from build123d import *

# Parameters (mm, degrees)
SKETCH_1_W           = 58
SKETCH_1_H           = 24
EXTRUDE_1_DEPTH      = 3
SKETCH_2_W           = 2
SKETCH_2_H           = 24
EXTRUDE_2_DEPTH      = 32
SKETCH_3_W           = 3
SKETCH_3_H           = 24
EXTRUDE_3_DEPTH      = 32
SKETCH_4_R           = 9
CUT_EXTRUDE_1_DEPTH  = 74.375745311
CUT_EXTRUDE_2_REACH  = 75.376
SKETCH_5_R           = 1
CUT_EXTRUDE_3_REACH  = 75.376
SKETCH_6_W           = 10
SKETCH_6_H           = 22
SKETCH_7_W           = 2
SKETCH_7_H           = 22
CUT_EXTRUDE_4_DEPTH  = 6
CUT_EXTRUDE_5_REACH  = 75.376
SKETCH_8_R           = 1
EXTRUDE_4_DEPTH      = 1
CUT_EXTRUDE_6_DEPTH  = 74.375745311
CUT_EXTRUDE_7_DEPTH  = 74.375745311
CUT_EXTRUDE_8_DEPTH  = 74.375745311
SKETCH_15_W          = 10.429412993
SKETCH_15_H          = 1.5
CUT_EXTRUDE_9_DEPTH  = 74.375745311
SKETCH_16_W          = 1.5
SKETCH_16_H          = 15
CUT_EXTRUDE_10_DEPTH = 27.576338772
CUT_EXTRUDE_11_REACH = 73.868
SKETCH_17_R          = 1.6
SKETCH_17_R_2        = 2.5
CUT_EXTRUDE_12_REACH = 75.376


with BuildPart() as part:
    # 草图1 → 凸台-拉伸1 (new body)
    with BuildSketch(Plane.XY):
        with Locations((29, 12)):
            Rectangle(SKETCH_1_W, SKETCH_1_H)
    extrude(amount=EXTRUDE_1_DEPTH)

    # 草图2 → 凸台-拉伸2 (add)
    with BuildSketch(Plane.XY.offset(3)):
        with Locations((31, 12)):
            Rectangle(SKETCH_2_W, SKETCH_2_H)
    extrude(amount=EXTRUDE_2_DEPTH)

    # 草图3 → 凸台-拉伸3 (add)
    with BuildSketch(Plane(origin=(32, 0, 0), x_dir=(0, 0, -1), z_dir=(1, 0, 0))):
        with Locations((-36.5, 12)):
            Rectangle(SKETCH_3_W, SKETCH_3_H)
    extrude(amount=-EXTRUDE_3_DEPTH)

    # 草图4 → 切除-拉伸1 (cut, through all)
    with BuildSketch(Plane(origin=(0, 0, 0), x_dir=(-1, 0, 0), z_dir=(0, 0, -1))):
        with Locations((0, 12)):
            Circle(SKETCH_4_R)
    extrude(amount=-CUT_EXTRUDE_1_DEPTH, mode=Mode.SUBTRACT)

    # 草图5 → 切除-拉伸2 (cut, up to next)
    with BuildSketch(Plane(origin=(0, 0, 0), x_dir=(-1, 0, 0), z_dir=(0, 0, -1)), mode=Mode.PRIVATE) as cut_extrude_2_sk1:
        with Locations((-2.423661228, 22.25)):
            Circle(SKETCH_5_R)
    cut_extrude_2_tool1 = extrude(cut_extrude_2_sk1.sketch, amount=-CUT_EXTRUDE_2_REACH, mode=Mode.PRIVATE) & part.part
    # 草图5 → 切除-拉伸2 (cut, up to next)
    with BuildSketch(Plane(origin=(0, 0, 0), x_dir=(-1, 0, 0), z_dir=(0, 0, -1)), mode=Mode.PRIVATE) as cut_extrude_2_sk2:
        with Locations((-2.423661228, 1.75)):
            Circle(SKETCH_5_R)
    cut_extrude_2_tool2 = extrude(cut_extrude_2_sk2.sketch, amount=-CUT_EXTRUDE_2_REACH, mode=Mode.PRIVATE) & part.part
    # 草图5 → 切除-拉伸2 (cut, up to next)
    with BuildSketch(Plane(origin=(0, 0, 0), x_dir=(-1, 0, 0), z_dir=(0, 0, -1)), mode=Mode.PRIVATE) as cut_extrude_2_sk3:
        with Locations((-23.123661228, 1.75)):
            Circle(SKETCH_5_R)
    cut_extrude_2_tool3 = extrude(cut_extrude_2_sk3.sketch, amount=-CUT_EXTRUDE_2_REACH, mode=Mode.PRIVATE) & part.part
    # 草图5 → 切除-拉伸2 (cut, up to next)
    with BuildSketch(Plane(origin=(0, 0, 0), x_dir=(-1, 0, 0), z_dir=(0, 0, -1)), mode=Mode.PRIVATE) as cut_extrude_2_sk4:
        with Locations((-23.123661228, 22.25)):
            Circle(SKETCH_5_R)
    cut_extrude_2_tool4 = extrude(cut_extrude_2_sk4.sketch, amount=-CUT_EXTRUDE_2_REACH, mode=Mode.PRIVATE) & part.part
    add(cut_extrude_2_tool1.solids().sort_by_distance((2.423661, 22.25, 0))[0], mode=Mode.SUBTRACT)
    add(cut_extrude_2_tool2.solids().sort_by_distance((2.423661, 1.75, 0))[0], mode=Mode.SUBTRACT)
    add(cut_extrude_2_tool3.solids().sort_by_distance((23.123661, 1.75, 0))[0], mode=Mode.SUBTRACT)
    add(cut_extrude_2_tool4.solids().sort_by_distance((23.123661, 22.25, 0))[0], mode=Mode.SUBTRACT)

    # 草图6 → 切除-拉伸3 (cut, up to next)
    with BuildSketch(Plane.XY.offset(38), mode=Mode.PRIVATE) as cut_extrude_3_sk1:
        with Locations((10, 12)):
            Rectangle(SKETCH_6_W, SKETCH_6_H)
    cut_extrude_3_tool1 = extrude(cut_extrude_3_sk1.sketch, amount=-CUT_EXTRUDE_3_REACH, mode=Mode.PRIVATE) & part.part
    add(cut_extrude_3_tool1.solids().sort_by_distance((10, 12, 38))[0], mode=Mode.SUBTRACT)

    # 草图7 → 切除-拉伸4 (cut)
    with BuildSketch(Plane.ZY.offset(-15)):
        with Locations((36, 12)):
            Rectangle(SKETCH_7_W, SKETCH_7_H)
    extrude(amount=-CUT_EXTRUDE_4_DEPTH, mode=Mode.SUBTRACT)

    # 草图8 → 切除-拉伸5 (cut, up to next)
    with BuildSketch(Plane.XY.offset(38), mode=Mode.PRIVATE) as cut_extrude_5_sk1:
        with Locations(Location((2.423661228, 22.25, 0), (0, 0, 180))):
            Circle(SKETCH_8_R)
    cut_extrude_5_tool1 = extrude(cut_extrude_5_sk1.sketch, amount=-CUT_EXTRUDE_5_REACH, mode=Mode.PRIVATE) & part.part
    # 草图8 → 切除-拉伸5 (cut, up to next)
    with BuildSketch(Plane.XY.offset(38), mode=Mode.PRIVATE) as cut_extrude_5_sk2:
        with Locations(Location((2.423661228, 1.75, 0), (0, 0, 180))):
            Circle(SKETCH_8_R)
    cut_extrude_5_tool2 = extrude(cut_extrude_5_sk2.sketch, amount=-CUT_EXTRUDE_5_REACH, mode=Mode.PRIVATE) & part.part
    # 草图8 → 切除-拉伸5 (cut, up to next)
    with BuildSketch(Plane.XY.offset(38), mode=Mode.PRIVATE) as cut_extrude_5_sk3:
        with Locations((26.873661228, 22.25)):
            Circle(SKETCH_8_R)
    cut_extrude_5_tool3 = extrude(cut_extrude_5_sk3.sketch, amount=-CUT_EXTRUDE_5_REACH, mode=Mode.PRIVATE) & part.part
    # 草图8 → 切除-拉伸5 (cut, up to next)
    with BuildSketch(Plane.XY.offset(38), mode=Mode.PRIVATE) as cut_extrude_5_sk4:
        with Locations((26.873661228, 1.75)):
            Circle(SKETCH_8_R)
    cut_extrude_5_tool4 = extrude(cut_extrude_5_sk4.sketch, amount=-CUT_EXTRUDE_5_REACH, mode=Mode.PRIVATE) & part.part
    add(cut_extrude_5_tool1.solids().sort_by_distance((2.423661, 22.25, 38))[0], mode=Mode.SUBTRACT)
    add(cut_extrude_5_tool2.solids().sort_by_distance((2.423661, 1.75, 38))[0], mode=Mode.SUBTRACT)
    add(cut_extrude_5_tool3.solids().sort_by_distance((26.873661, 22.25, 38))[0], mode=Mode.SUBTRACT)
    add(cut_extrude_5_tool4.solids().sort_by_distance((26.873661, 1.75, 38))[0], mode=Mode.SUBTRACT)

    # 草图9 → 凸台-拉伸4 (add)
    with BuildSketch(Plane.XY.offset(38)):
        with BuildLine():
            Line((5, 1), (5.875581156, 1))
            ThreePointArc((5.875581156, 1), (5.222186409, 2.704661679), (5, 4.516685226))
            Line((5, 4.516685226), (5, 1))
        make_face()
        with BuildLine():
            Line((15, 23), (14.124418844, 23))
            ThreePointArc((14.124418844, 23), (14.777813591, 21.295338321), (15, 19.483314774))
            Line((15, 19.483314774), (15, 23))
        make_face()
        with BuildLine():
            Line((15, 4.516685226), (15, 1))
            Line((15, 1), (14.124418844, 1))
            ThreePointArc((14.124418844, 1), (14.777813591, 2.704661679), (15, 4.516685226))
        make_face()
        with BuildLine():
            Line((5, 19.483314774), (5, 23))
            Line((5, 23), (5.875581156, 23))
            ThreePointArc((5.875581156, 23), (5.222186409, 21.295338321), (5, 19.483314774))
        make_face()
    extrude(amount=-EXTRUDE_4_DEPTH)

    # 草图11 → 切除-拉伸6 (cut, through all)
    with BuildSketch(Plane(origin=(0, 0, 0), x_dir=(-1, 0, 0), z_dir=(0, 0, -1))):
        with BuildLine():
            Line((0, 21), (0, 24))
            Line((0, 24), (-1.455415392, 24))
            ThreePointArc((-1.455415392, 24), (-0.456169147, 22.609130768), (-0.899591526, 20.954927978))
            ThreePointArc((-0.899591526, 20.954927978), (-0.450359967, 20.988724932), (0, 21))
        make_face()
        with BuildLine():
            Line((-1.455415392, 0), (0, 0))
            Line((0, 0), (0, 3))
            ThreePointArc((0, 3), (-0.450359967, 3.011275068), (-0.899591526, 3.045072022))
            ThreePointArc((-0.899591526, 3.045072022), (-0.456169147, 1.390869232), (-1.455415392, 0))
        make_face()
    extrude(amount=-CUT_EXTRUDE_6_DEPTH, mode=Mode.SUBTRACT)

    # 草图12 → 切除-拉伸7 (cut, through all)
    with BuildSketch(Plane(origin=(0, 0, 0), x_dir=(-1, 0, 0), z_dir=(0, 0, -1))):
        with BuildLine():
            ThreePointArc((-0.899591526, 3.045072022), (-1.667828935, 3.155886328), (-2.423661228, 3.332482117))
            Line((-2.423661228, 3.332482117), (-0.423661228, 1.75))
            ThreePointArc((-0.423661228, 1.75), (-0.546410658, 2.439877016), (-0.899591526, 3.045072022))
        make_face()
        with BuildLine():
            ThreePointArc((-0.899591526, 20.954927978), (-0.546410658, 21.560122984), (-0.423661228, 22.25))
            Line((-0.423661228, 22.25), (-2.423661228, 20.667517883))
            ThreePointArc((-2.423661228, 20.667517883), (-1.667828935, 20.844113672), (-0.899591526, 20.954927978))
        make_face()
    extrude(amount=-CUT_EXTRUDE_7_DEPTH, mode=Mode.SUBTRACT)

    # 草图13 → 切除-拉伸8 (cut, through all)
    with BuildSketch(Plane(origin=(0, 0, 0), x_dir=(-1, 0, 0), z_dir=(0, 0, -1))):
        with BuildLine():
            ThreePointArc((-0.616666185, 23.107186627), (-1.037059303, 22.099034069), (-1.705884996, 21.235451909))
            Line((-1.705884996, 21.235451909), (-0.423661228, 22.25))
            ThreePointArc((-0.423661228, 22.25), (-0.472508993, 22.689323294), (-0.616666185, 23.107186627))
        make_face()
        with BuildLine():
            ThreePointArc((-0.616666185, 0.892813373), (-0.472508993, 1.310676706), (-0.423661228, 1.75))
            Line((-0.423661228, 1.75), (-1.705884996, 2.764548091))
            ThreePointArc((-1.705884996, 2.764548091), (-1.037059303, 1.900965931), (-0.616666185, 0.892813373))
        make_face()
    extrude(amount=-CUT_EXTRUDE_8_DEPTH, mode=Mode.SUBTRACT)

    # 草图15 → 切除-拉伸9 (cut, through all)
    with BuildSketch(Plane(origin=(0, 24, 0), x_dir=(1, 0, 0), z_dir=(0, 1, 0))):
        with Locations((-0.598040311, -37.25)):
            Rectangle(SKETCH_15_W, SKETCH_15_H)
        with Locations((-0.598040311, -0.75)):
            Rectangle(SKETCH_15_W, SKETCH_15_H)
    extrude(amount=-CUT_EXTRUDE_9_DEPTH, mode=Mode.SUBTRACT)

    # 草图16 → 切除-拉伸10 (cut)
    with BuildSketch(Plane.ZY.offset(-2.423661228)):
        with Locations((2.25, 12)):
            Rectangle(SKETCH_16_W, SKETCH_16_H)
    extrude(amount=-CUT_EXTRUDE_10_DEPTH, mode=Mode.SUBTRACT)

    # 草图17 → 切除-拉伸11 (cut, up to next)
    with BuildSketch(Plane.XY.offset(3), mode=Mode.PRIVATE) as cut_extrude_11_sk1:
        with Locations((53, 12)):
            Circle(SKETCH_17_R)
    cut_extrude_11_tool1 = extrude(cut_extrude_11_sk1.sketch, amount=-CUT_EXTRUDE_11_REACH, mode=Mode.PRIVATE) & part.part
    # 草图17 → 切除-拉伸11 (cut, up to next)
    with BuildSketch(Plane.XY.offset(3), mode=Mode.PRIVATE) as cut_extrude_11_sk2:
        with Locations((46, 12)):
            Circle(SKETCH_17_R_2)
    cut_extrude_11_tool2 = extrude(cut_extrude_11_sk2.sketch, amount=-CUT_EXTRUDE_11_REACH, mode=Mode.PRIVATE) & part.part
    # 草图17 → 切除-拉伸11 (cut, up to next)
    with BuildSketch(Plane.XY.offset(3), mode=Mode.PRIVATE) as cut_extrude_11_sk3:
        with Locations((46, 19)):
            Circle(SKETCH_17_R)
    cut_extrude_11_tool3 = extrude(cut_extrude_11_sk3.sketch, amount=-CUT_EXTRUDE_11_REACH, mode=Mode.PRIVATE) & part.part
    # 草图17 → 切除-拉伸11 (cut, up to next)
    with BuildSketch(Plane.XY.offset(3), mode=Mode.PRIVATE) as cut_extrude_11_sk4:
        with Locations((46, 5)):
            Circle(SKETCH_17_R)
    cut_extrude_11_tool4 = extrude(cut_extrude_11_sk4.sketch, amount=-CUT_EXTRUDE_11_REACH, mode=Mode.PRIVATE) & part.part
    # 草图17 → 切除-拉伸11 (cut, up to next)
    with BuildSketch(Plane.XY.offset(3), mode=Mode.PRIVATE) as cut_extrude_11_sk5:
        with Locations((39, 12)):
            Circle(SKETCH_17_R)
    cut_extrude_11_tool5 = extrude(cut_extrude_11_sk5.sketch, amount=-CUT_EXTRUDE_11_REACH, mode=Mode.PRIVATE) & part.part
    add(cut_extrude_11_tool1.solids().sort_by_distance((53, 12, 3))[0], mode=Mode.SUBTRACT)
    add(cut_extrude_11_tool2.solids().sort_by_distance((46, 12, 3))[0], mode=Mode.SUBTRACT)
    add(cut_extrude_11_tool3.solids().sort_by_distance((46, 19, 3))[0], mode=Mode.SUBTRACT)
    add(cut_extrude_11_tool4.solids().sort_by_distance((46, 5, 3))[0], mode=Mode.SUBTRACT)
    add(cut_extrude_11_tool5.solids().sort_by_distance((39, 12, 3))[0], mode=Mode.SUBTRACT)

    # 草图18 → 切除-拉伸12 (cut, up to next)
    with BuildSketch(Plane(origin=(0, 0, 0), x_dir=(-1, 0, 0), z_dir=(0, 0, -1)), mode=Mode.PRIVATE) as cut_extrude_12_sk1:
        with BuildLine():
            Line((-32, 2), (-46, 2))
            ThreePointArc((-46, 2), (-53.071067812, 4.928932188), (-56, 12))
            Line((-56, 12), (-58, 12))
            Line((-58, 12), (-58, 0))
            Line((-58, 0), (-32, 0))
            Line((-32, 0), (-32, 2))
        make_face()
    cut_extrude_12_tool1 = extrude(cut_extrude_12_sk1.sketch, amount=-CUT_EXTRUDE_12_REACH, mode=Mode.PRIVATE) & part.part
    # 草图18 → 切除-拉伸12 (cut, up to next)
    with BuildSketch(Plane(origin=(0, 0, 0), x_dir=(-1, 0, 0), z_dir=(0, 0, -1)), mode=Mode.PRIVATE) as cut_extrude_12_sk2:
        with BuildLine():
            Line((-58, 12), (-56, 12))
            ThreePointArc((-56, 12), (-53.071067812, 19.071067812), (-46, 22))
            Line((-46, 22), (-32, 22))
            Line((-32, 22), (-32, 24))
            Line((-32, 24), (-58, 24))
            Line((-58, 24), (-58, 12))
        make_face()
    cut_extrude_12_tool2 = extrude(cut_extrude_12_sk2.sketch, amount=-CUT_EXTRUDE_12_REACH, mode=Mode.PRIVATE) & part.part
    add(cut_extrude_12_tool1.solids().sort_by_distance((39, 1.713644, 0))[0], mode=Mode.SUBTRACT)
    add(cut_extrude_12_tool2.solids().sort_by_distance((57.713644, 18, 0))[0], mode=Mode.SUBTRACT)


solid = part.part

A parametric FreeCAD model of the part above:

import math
import FreeCAD as App
import Part
import Sketcher

V = App.Vector


def add_polygon(sketch, points):
    """Adds a closed chain of lines whose ends are joined by coincident constraints."""
    first, n = sketch.GeometryCount, len(points)
    for a, b in zip(points, points[1:] + points[:1]):
        sketch.addGeometry(Part.LineSegment(App.Vector(*a, 0), App.Vector(*b, 0)), False)
    for i in range(n):
        sketch.addConstraint(Sketcher.Constraint("Coincident", first + i, 2, first + (i + 1) % n, 1))

doc = App.newDocument("Part")
params = doc.addObject("Spreadsheet::Sheet", "Params")
for row, (alias, value) in enumerate([
    ("sketch1_width", "58 mm"),
    ("sketch1_height", "24 mm"),
    ("pad1_length", "3 mm"),
    ("sketch2_width", "2 mm"),
    ("sketch2_height", "24 mm"),
    ("pad2_length", "32 mm"),
    ("sketch3_width", "24 mm"),
    ("sketch3_height", "3 mm"),
    ("pad3_length", "32 mm"),
    ("sketch4_diameter", "18 mm"),
    ("sketch5_diameter", "2 mm"),
    ("sketch6_diameter", "2 mm"),
    ("sketch7_diameter", "2 mm"),
    ("sketch8_diameter", "2 mm"),
    ("sketch9_width", "10 mm"),
    ("sketch9_height", "22 mm"),
    ("sketch10_width", "22 mm"),
    ("sketch10_height", "2 mm"),
    ("pocket7_length", "6 mm"),
    ("sketch11_diameter", "2 mm"),
    ("sketch12_diameter", "2 mm"),
    ("sketch13_diameter", "2 mm"),
    ("sketch14_diameter", "2 mm"),
    ("sketch15_radius", "7.5 mm"),
    ("pad4_length", "1 mm"),
    ("sketch16_radius", "2 mm"),
    ("sketch16_radius2", "9 mm"),
    ("sketch16_height", "3 mm"),
    ("sketch17_radius", "9 mm"),
    ("sketch17_radius2", "2 mm"),
    ("sketch18_radius", "2 mm"),
    ("sketch19_height", "1.5 mm"),
    ("sketch20_width", "15 mm"),
    ("sketch20_height", "1.5 mm"),
    ("pocket16_length", "27.576339 mm"),
    ("sketch21_diameter", "3.2 mm"),
    ("sketch22_diameter", "5 mm"),
    ("sketch23_diameter", "3.2 mm"),
    ("sketch24_diameter", "3.2 mm"),
    ("sketch25_diameter", "3.2 mm"),
    ("sketch26_radius", "10 mm"),
    ("sketch26_width", "14 mm"),
    ("sketch26_width2", "2 mm"),
    ("sketch26_height", "12 mm"),
    ("sketch27_radius", "10 mm"),
    ("sketch27_width", "2 mm"),
    ("sketch27_width2", "14 mm"),
], start=1):
    params.set(f"A{row}", alias)
    params.set(f"B{row}", "=" + value)
    params.setAlias(f"B{row}", alias)

body = doc.addObject("PartDesign::Body", "Body")

# Sketch on XY plane
sketch1 = body.newObject("Sketcher::SketchObject", "Sketch")
sketch1.AttachmentSupport = (doc.getObject("XY_Plane"), [""])
sketch1.MapMode = "FlatFace"
add_polygon(sketch1, [(0, 24), (0, 0), (58, 0), (58, 24)])  # lines 0-3
sketch1.addConstraint([
    Sketcher.Constraint("Vertical", 0),
    Sketcher.Constraint("Horizontal", 1),
    Sketcher.Constraint("Vertical", 2),
    Sketcher.Constraint("Horizontal", 3),
    Sketcher.Constraint("Coincident", 0, 2, -1, 1),
    Sketcher.Constraint("DistanceX", 1, 1, 1, 2, 58.0),
    Sketcher.Constraint("DistanceY", 0, 2, 0, 1, 24.0),
])
sketch1.setExpression("Constraints[9]", "Params.sketch1_width")
sketch1.setExpression("Constraints[10]", "Params.sketch1_height")
pad1 = body.newObject("PartDesign::Pad", "Pad")
pad1.Profile = sketch1
pad1.setExpression("Length", "Params.pad1_length")

# Sketch on XY plane
sketch2 = body.newObject("Sketcher::SketchObject", "Sketch001")
sketch2.AttachmentSupport = (doc.getObject("XY_Plane"), [""])
sketch2.MapMode = "FlatFace"
sketch2.AttachmentOffset = App.Placement(V(0, 0, 3), App.Rotation())
add_polygon(sketch2, [(30, 24), (30, 0), (32, 0), (32, 24)])  # lines 0-3
sketch2.addConstraint([
    Sketcher.Constraint("Vertical", 0),
    Sketcher.Constraint("Horizontal", 1),
    Sketcher.Constraint("Vertical", 2),
    Sketcher.Constraint("Horizontal", 3),
    Sketcher.Constraint("PointOnObject", 0, 2, -1),
    Sketcher.Constraint("DistanceX", 1, 1, 1, 2, 2.0),
    Sketcher.Constraint("DistanceY", 0, 2, 0, 1, 24.0),
    Sketcher.Constraint("DistanceX", -1, 1, 0, 2, 30.0),
])
sketch2.setExpression("Constraints[9]", "Params.sketch2_width")
sketch2.setExpression("Constraints[10]", "Params.sketch2_height")
pad2 = body.newObject("PartDesign::Pad", "Pad001")
pad2.Profile = sketch2
pad2.setExpression("Length", "Params.pad2_length")

# Sketch on YZ plane
sketch3 = body.newObject("Sketcher::SketchObject", "Sketch002")
sketch3.AttachmentSupport = (doc.getObject("YZ_Plane"), [""])
sketch3.MapMode = "FlatFace"
sketch3.AttachmentOffset = App.Placement(V(0, 0, 32), App.Rotation())
add_polygon(sketch3, [(24, 38), (0, 38), (0, 35), (24, 35)])  # lines 0-3
sketch3.addConstraint([
    Sketcher.Constraint("Horizontal", 0),
    Sketcher.Constraint("Vertical", 1),
    Sketcher.Constraint("Horizontal", 2),
    Sketcher.Constraint("Vertical", 3),
    Sketcher.Constraint("PointOnObject", 0, 2, -2),
    Sketcher.Constraint("DistanceX", 0, 2, 0, 1, 24.0),
    Sketcher.Constraint("DistanceY", 1, 2, 1, 1, 3.0),
    Sketcher.Constraint("DistanceY", -1, 1, 0, 2, 38.0),
])
sketch3.setExpression("Constraints[9]", "Params.sketch3_width")
sketch3.setExpression("Constraints[10]", "Params.sketch3_height")
pad3 = body.newObject("PartDesign::Pad", "Pad002")
pad3.Profile = sketch3
pad3.setExpression("Length", "Params.pad3_length")
pad3.Reversed = True

# Sketch on XY plane
sketch4 = body.newObject("Sketcher::SketchObject", "Sketch003")
sketch4.AttachmentSupport = (doc.getObject("XY_Plane"), [""])
sketch4.MapMode = "FlatFace"
sketch4.addGeometry(Part.Circle(V(0, 12, 0), V(0, 0, 1), 9), False)
sketch4.addConstraint([
    Sketcher.Constraint("PointOnObject", 0, 3, -2),
    Sketcher.Constraint("Diameter", 0, 18.0),
    Sketcher.Constraint("DistanceY", -1, 1, 0, 3, 12.0),
])
sketch4.setExpression("Constraints[1]", "Params.sketch4_diameter")
pocket1 = body.newObject("PartDesign::Pocket", "Pocket")
pocket1.Profile = sketch4
pocket1.Type = "ThroughAll"
pocket1.Reversed = True

# Sketch on XY plane
sketch5 = body.newObject("Sketcher::SketchObject", "Sketch004")
sketch5.AttachmentSupport = (doc.getObject("XY_Plane"), [""])
sketch5.MapMode = "FlatFace"
sketch5.addGeometry(Part.Circle(V(2.4, 22.2, 0), V(0, 0, 1), 1), False)
sketch5.addConstraint([
    Sketcher.Constraint("Diameter", 0, 2.0),
    Sketcher.Constraint("DistanceY", -1, 1, 0, 3, 22.25),
    Sketcher.Constraint("DistanceX", -1, 1, 0, 3, 2.423661),
])
sketch5.setExpression("Constraints[0]", "Params.sketch5_diameter")
pocket2 = body.newObject("PartDesign::Pocket", "Pocket001")
pocket2.Profile = sketch5
pocket2.Type = "UpToFirst"
pocket2.Reversed = True

# Sketch on XY plane
sketch6 = body.newObject("Sketcher::SketchObject", "Sketch005")
sketch6.AttachmentSupport = (doc.getObject("XY_Plane"), [""])
sketch6.MapMode = "FlatFace"
sketch6.addGeometry(Part.Circle(V(2.4, 1.8, 0), V(0, 0, 1), 1), False)
sketch6.addConstraint([
    Sketcher.Constraint("Diameter", 0, 2.0),
    Sketcher.Constraint("DistanceY", -1, 1, 0, 3, 1.75),
    Sketcher.Constraint("DistanceX", -1, 1, 0, 3, 2.423661),
])
sketch6.setExpression("Constraints[0]", "Params.sketch6_diameter")
pocket3 = body.newObject("PartDesign::Pocket", "Pocket002")
pocket3.Profile = sketch6
pocket3.Type = "UpToFirst"
pocket3.Reversed = True

# Sketch on XY plane
sketch7 = body.newObject("Sketcher::SketchObject", "Sketch006")
sketch7.AttachmentSupport = (doc.getObject("XY_Plane"), [""])
sketch7.MapMode = "FlatFace"
sketch7.addGeometry(Part.Circle(V(23.1, 1.8, 0), V(0, 0, 1), 1), False)
sketch7.addConstraint([
    Sketcher.Constraint("Diameter", 0, 2.0),
    Sketcher.Constraint("DistanceY", -1, 1, 0, 3, 1.75),
    Sketcher.Constraint("DistanceX", -1, 1, 0, 3, 23.123661),
])
sketch7.setExpression("Constraints[0]", "Params.sketch7_diameter")
pocket4 = body.newObject("PartDesign::Pocket", "Pocket003")
pocket4.Profile = sketch7
pocket4.Type = "UpToFirst"
pocket4.Reversed = True

# Sketch on XY plane
sketch8 = body.newObject("Sketcher::SketchObject", "Sketch007")
sketch8.AttachmentSupport = (doc.getObject("XY_Plane"), [""])
sketch8.MapMode = "FlatFace"
sketch8.addGeometry(Part.Circle(V(23.1, 22.2, 0), V(0, 0, 1), 1), False)
sketch8.addConstraint([
    Sketcher.Constraint("Diameter", 0, 2.0),
    Sketcher.Constraint("DistanceY", -1, 1, 0, 3, 22.25),
    Sketcher.Constraint("DistanceX", -1, 1, 0, 3, 23.123661),
])
sketch8.setExpression("Constraints[0]", "Params.sketch8_diameter")
pocket5 = body.newObject("PartDesign::Pocket", "Pocket004")
pocket5.Profile = sketch8
pocket5.Type = "UpToFirst"
pocket5.Reversed = True

# Sketch on XY plane
sketch9 = body.newObject("Sketcher::SketchObject", "Sketch008")
sketch9.AttachmentSupport = (doc.getObject("XY_Plane"), [""])
sketch9.MapMode = "FlatFace"
sketch9.AttachmentOffset = App.Placement(V(0, 0, 38), App.Rotation())
add_polygon(sketch9, [(5, 23), (5, 1), (15, 1), (15, 23)])  # lines 0-3
sketch9.addConstraint([
    Sketcher.Constraint("Vertical", 0),
    Sketcher.Constraint("Horizontal", 1),
    Sketcher.Constraint("Vertical", 2),
    Sketcher.Constraint("Horizontal", 3),
    Sketcher.Constraint("DistanceX", 1, 1, 1, 2, 10.0),
    Sketcher.Constraint("DistanceY", 0, 2, 0, 1, 22.0),
    Sketcher.Constraint("DistanceX", -1, 1, 0, 2, 5.0),
    Sketcher.Constraint("DistanceY", -1, 1, 0, 2, 1.0),
])
sketch9.setExpression("Constraints[8]", "Params.sketch9_width")
sketch9.setExpression("Constraints[9]", "Params.sketch9_height")
pocket6 = body.newObject("PartDesign::Pocket", "Pocket005")
pocket6.Profile = sketch9
pocket6.Type = "UpToFirst"

# Sketch on YZ plane
sketch10 = body.newObject("Sketcher::SketchObject", "Sketch009")
sketch10.AttachmentSupport = (doc.getObject("YZ_Plane"), [""])
sketch10.MapMode = "FlatFace"
sketch10.AttachmentOffset = App.Placement(V(0, 0, 15), App.Rotation())
add_polygon(sketch10, [(23, 35), (1, 35), (1, 37), (23, 37)])  # lines 0-3
sketch10.addConstraint([
    Sketcher.Constraint("Horizontal", 0),
    Sketcher.Constraint("Vertical", 1),
    Sketcher.Constraint("Horizontal", 2),
    Sketcher.Constraint("Vertical", 3),
    Sketcher.Constraint("DistanceX", 0, 2, 0, 1, 22.0),
    Sketcher.Constraint("DistanceY", 1, 1, 1, 2, 2.0),
    Sketcher.Constraint("DistanceX", -1, 1, 0, 2, 1.0),
    Sketcher.Constraint("DistanceY", -1, 1, 0, 2, 35.0),
])
sketch10.setExpression("Constraints[8]", "Params.sketch10_width")
sketch10.setExpression("Constraints[9]", "Params.sketch10_height")
pocket7 = body.newObject("PartDesign::Pocket", "Pocket006")
pocket7.Profile = sketch10
pocket7.setExpression("Length", "Params.pocket7_length")
pocket7.Reversed = True

# Sketch on XY plane
sketch11 = body.newObject("Sketcher::SketchObject", "Sketch010")
sketch11.AttachmentSupport = (doc.getObject("XY_Plane"), [""])
sketch11.MapMode = "FlatFace"
sketch11.AttachmentOffset = App.Placement(V(0, 0, 38), App.Rotation())
sketch11.addGeometry(Part.Circle(V(2.4, 22.2, 0), V(0, 0, 1), 1), False)
sketch11.addConstraint([
    Sketcher.Constraint("Diameter", 0, 2.0),
    Sketcher.Constraint("DistanceY", -1, 1, 0, 3, 22.25),
    Sketcher.Constraint("DistanceX", -1, 1, 0, 3, 2.423661),
])
sketch11.setExpression("Constraints[0]", "Params.sketch11_diameter")
pocket8 = body.newObject("PartDesign::Pocket", "Pocket007")
pocket8.Profile = sketch11
pocket8.Type = "UpToFirst"

# Sketch on XY plane
sketch12 = body.newObject("Sketcher::SketchObject", "Sketch011")
sketch12.AttachmentSupport = (doc.getObject("XY_Plane"), [""])
sketch12.MapMode = "FlatFace"
sketch12.AttachmentOffset = App.Placement(V(0, 0, 38), App.Rotation())
sketch12.addGeometry(Part.Circle(V(2.4, 1.8, 0), V(0, 0, 1), 1), False)
sketch12.addConstraint([
    Sketcher.Constraint("Diameter", 0, 2.0),
    Sketcher.Constraint("DistanceY", -1, 1, 0, 3, 1.75),
    Sketcher.Constraint("DistanceX", -1, 1, 0, 3, 2.423661),
])
sketch12.setExpression("Constraints[0]", "Params.sketch12_diameter")
pocket9 = body.newObject("PartDesign::Pocket", "Pocket008")
pocket9.Profile = sketch12
pocket9.Type = "UpToFirst"

# Sketch on XY plane
sketch13 = body.newObject("Sketcher::SketchObject", "Sketch012")
sketch13.AttachmentSupport = (doc.getObject("XY_Plane"), [""])
sketch13.MapMode = "FlatFace"
sketch13.AttachmentOffset = App.Placement(V(0, 0, 38), App.Rotation())
sketch13.addGeometry(Part.Circle(V(26.9, 22.2, 0), V(0, 0, 1), 1), False)
sketch13.addConstraint([
    Sketcher.Constraint("Diameter", 0, 2.0),
    Sketcher.Constraint("DistanceY", -1, 1, 0, 3, 22.25),
    Sketcher.Constraint("DistanceX", -1, 1, 0, 3, 26.873661),
])
sketch13.setExpression("Constraints[0]", "Params.sketch13_diameter")
pocket10 = body.newObject("PartDesign::Pocket", "Pocket009")
pocket10.Profile = sketch13
pocket10.Type = "UpToFirst"

# Sketch on XY plane
sketch14 = body.newObject("Sketcher::SketchObject", "Sketch013")
sketch14.AttachmentSupport = (doc.getObject("XY_Plane"), [""])
sketch14.MapMode = "FlatFace"
sketch14.AttachmentOffset = App.Placement(V(0, 0, 38), App.Rotation())
sketch14.addGeometry(Part.Circle(V(26.9, 1.8, 0), V(0, 0, 1), 1), False)
sketch14.addConstraint([
    Sketcher.Constraint("Diameter", 0, 2.0),
    Sketcher.Constraint("DistanceY", -1, 1, 0, 3, 1.75),
    Sketcher.Constraint("DistanceX", -1, 1, 0, 3, 26.873661),
])
sketch14.setExpression("Constraints[0]", "Params.sketch14_diameter")
pocket11 = body.newObject("PartDesign::Pocket", "Pocket010")
pocket11.Profile = sketch14
pocket11.Type = "UpToFirst"

# Sketch on XY plane
sketch15 = body.newObject("Sketcher::SketchObject", "Sketch014")
sketch15.AttachmentSupport = (doc.getObject("XY_Plane"), [""])
sketch15.MapMode = "FlatFace"
sketch15.AttachmentOffset = App.Placement(V(0, 0, 38), App.Rotation())
sketch15.addGeometry([
    Part.LineSegment(V(5, 1, 0), V(5.9, 1, 0)),  # 0
    Part.ArcOfCircle(Part.Circle(V(12.5, 4.5, 0), V(0, 0, 1), 7.5), math.radians(180), math.radians(208)),  # 1
    Part.LineSegment(V(5, 4.5, 0), V(5, 1, 0)),  # 2
    Part.LineSegment(V(15, 23, 0), V(14.1, 23, 0)),  # 3
    Part.ArcOfCircle(Part.Circle(V(7.5, 19.5, 0), V(0, 0, 1), 7.5), math.radians(0), math.radians(28)),  # 4
    Part.LineSegment(V(15, 19.5, 0), V(15, 23, 0)),  # 5
    Part.LineSegment(V(15, 1, 0), V(15, 4.5, 0)),  # 6
    Part.ArcOfCircle(Part.Circle(V(7.5, 4.5, 0), V(0, 0, 1), 7.5), math.radians(-28), math.radians(0)),  # 7
    Part.LineSegment(V(14.1, 1, 0), V(15, 1, 0)),  # 8
    Part.LineSegment(V(5, 23, 0), V(5, 19.5, 0)),  # 9
    Part.ArcOfCircle(Part.Circle(V(12.5, 19.5, 0), V(0, 0, 1), 7.5), math.radians(152), math.radians(180)),  # 10
    Part.LineSegment(V(5.9, 23, 0), V(5, 23, 0)),  # 11
], False)
sketch15.addConstraint([
    Sketcher.Constraint("Coincident", 0, 2, 1, 2),
    Sketcher.Constraint("Tangent", 1, 1, 2, 1),
    Sketcher.Constraint("Coincident", 2, 2, 0, 1),
    Sketcher.Constraint("Coincident", 3, 2, 4, 2),
    Sketcher.Constraint("Tangent", 4, 1, 5, 1),
    Sketcher.Constraint("Coincident", 5, 2, 3, 1),
    Sketcher.Constraint("Tangent", 6, 2, 7, 2),
    Sketcher.Constraint("Coincident", 7, 1, 8, 1),
    Sketcher.Constraint("Coincident", 8, 2, 6, 1),
    Sketcher.Constraint("Tangent", 9, 2, 10, 2),
    Sketcher.Constraint("Coincident", 10, 1, 11, 1),
    Sketcher.Constraint("Coincident", 11, 2, 9, 1),
    Sketcher.Constraint("Horizontal", 0),
    Sketcher.Constraint("Vertical", 2),
    Sketcher.Constraint("Horizontal", 3),
    Sketcher.Constraint("Vertical", 5),
    Sketcher.Constraint("Vertical", 6),
    Sketcher.Constraint("Horizontal", 8),
    Sketcher.Constraint("Vertical", 9),
    Sketcher.Constraint("Horizontal", 11),
    Sketcher.Constraint("Equal", 1, 4),
    Sketcher.Constraint("Equal", 4, 7),
    Sketcher.Constraint("Equal", 7, 10),
    Sketcher.Constraint("Horizontal", 1, 3, 7, 3),
    Sketcher.Constraint("Horizontal", 4, 3, 10, 3),
    Sketcher.Constraint("Horizontal", 2, 2, 7, 1),
    Sketcher.Constraint("Horizontal", 5, 2, 10, 1),
    Sketcher.Constraint("Vertical", 4, 3, 7, 3),
    Sketcher.Constraint("Vertical", 1, 3, 10, 3),
    Sketcher.Constraint("Vertical", 3, 2, 7, 1),
    Sketcher.Constraint("Radius", 1, 7.5),
    Sketcher.Constraint("DistanceY", -1, 1, 0, 2, 1.0),
    Sketcher.Constraint("DistanceX", -1, 1, 1, 1, 5.0),
    Sketcher.Constraint("DistanceY", -1, 1, 3, 2, 23.0),
    Sketcher.Constraint("DistanceX", -1, 1, 4, 1, 15.0),
    Sketcher.Constraint("DistanceX", 0, 1, 0, 2, 0.875581),
])
sketch15.setExpression("Constraints[30]", "Params.sketch15_radius")
pad4 = body.newObject("PartDesign::Pad", "Pad003")
pad4.Profile = sketch15
pad4.setExpression("Length", "Params.pad4_length")
pad4.Reversed = True

# Sketch on XY plane
sketch16 = body.newObject("Sketcher::SketchObject", "Sketch015")
sketch16.AttachmentSupport = (doc.getObject("XY_Plane"), [""])
sketch16.MapMode = "FlatFace"
sketch16.addGeometry([
    Part.LineSegment(V(0, 21, 0), V(0, 24, 0)),  # 0
    Part.LineSegment(V(0, 24, 0), V(1.5, 24, 0)),  # 1
    Part.ArcOfCircle(Part.Circle(V(2.4, 22.2, 0), V(0, 0, 1), 2), math.radians(119), math.radians(220)),  # 2
    Part.ArcOfCircle(Part.Circle(V(0, 12, 0), V(0, 0, 1), 9), math.radians(84.26), math.radians(90)),  # 3
    Part.LineSegment(V(1.5, 0, 0), V(0, 0, 0)),  # 4
    Part.LineSegment(V(0, 0, 0), V(0, 3, 0)),  # 5
    Part.ArcOfCircle(Part.Circle(V(0, 12, 0), V(0, 0, 1), 9), math.radians(-90), math.radians(-84.26)),  # 6
    Part.ArcOfCircle(Part.Circle(V(2.4, 1.8, 0), V(0, 0, 1), 2), math.radians(140), math.radians(241)),  # 7
], False)
sketch16.addConstraint([
    Sketcher.Constraint("Coincident", 0, 2, 1, 1),
    Sketcher.Constraint("Coincident", 1, 2, 2, 1),
    Sketcher.Constraint("Coincident", 2, 2, 3, 1),
    Sketcher.Constraint("Coincident", 3, 2, 0, 1),
    Sketcher.Constraint("Coincident", 4, 2, 5, 1),
    Sketcher.Constraint("Coincident", 5, 2, 6, 1),
    Sketcher.Constraint("Coincident", 6, 2, 7, 1),
    Sketcher.Constraint("Coincident", 7, 2, 4, 1),
    Sketcher.Constraint("Vertical", 0),
    Sketcher.Constraint("Horizontal", 1),
    Sketcher.Constraint("Horizontal", 4),
    Sketcher.Constraint("Vertical", 5),
    Sketcher.Constraint("Coincident", 4, 2, -1, 1),
    Sketcher.Constraint("Coincident", 6, 3, 3, 3),
    Sketcher.Constraint("Equal", 3, 6),
    Sketcher.Constraint("Equal", 2, 7),
    Sketcher.Constraint("PointOnObject", 3, 3, -2),
    Sketcher.Constraint("PointOnObject", 0, 2, -2),
    Sketcher.Constraint("Vertical", 2, 3, 7, 3),
    Sketcher.Constraint("Vertical", 2, 2, 6, 2),
    Sketcher.Constraint("Vertical", 1, 2, 7, 2),
    Sketcher.Constraint("Radius", 2, 2.0),
    Sketcher.Constraint("Radius", 3, 9.0),
    Sketcher.Constraint("DistanceY", 0, 1, 0, 2, 3.0),
    Sketcher.Constraint("DistanceY", 7, 3, 2, 3, 20.5),
    Sketcher.Constraint("DistanceX", 1, 1, 1, 2, 1.455415),
])
sketch16.setExpression("Constraints[21]", "Params.sketch16_radius")
sketch16.setExpression("Constraints[22]", "Params.sketch16_radius2")
sketch16.setExpression("Constraints[23]", "Params.sketch16_height")
pocket12 = body.newObject("PartDesign::Pocket", "Pocket011")
pocket12.Profile = sketch16
pocket12.Type = "ThroughAll"
pocket12.Reversed = True

# Sketch on XY plane
sketch17 = body.newObject("Sketcher::SketchObject", "Sketch016")
sketch17.AttachmentSupport = (doc.getObject("XY_Plane"), [""])
sketch17.MapMode = "FlatFace"
sketch17.addGeometry([
    Part.ArcOfCircle(Part.Circle(V(0, 12, 0), V(0, 0, 1), 9), math.radians(-84.26), math.radians(-74.38)),  # 0
    Part.LineSegment(V(2.4, 3.3, 0), V(0.4, 1.8, 0)),  # 1
    Part.ArcOfCircle(Part.Circle(V(2.4, 1.8, 0), V(0, 0, 1), 2), math.radians(140), math.radians(180)),  # 2
    Part.ArcOfCircle(Part.Circle(V(2.4, 22.2, 0), V(0, 0, 1), 2), math.radians(180), math.radians(220)),  # 3
    Part.LineSegment(V(0.4, 22.2, 0), V(2.4, 20.7, 0)),  # 4
    Part.ArcOfCircle(Part.Circle(V(0, 12, 0), V(0, 0, 1), 9), math.radians(74.38), math.radians(84.26)),  # 5
], False)
sketch17.addConstraint([
    Sketcher.Constraint("Coincident", 0, 2, 1, 1),
    Sketcher.Constraint("Coincident", 1, 2, 2, 2),
    Sketcher.Constraint("Coincident", 2, 1, 0, 1),
    Sketcher.Constraint("Coincident", 3, 1, 4, 1),
    Sketcher.Constraint("Coincident", 4, 2, 5, 1),
    Sketcher.Constraint("Coincident", 5, 2, 3, 2),
    Sketcher.Constraint("Coincident", 5, 3, 0, 3),
    Sketcher.Constraint("Equal", 2, 3),
    Sketcher.Constraint("Equal", 0, 5),
    Sketcher.Constraint("PointOnObject", 0, 3, -2),
    Sketcher.Constraint("Horizontal", 2, 3, 1, 2),
    Sketcher.Constraint("Vertical", 2, 3, 3, 3),
    Sketcher.Constraint("Vertical", 3, 3, 0, 2),
    Sketcher.Constraint("Vertical", 0, 2, 4, 2),
    Sketcher.Constraint("Vertical", 2, 1, 5, 2),
    Sketcher.Constraint("Equal", 1, 4),
    Sketcher.Constraint("Radius", 0, 9.0),
    Sketcher.Constraint("Radius", 2, 2.0),
    Sketcher.Constraint("DistanceY", -1, 1, 0, 3, 12.0),
    Sketcher.Constraint("DistanceY", 2, 3, 3, 3, 20.5),
    Sketcher.Constraint("DistanceX", -1, 1, 2, 3, 2.423661),
])
sketch17.setExpression("Constraints[16]", "Params.sketch17_radius")
sketch17.setExpression("Constraints[17]", "Params.sketch17_radius2")
pocket13 = body.newObject("PartDesign::Pocket", "Pocket012")
pocket13.Profile = sketch17
pocket13.Type = "ThroughAll"
pocket13.Reversed = True

# Sketch on XY plane
sketch18 = body.newObject("Sketcher::SketchObject", "Sketch017")
sketch18.AttachmentSupport = (doc.getObject("XY_Plane"), [""])
sketch18.MapMode = "FlatFace"
sketch18.addGeometry([
    Part.ArcOfCircle(Part.Circle(V(4.6, 24.2, 0), V(0, 0, 1), 4.2), math.radians(-165), math.radians(-135)),  # 0
    Part.LineSegment(V(1.7, 21.2, 0), V(0.4, 22.2, 0)),  # 1
    Part.ArcOfCircle(Part.Circle(V(2.4, 22.3, 0), V(0, 0, 1), 2), math.radians(155), math.radians(180)),  # 2
    Part.ArcOfCircle(Part.Circle(V(2.4, 1.7, 0), V(0, 0, 1), 2), math.radians(180), math.radians(205)),  # 3
    Part.LineSegment(V(0.4, 1.8, 0), V(1.7, 2.8, 0)),  # 4
    Part.ArcOfCircle(Part.Circle(V(4.6, -0.2, 0), V(0, 0, 1), 4.2), math.radians(135), math.radians(165)),  # 5
], False)
sketch18.addConstraint([
    Sketcher.Constraint("Coincident", 0, 2, 1, 1),
    Sketcher.Constraint("Coincident", 1, 2, 2, 2),
    Sketcher.Constraint("Coincident", 2, 1, 0, 1),
    Sketcher.Constraint("Coincident", 3, 1, 4, 1),
    Sketcher.Constraint("Coincident", 4, 2, 5, 1),
    Sketcher.Constraint("Coincident", 5, 2, 3, 2),
    Sketcher.Constraint("Equal", 2, 3),
    Sketcher.Constraint("Equal", 0, 5),
    Sketcher.Constraint("Horizontal", 2, 3, 1, 2),
    Sketcher.Constraint("Vertical", 2, 3, 3, 3),
    Sketcher.Constraint("Vertical", 0, 3, 5, 3),
    Sketcher.Constraint("Vertical", 0, 2, 4, 2),
    Sketcher.Constraint("Vertical", 2, 1, 5, 2),
    Sketcher.Constraint("Equal", 1, 4),
    Sketcher.Constraint("Radius", 2, 2.0),
    Sketcher.Constraint("DistanceY", 3, 3, 2, 3, 20.5),
    Sketcher.Constraint("DistanceY", -1, 1, 2, 3, 22.25),
    Sketcher.Constraint("Radius", 0, 4.150847),
    Sketcher.Constraint("DistanceX", 2, 3, 0, 3, 2.201001),
    Sketcher.Constraint("DistanceY", -1, 1, 0, 3, 24.186768),
    Sketcher.Constraint("DistanceX", -1, 1, 2, 3, 2.423661),
    Sketcher.Constraint("DistanceY", -1, 1, 0, 2, 21.235452),
])
sketch18.setExpression("Constraints[14]", "Params.sketch18_radius")
pocket14 = body.newObject("PartDesign::Pocket", "Pocket013")
pocket14.Profile = sketch18
pocket14.Type = "ThroughAll"
pocket14.Reversed = True

# Sketch on XZ plane
sketch19 = body.newObject("Sketcher::SketchObject", "Sketch018")
sketch19.AttachmentSupport = (doc.getObject("XZ_Plane"), [""])
sketch19.MapMode = "FlatFace"
sketch19.AttachmentOffset = App.Placement(V(0, 0, -24), App.Rotation())
add_polygon(sketch19, [(-5.8, 36.5), (-5.8, 38), (4.6, 38), (4.6, 36.5)])  # lines 0-3
add_polygon(sketch19, [(-5.8, 0), (-5.8, 1.5), (4.6, 1.5), (4.6, 0)])  # lines 4-7
sketch19.addConstraint([
    Sketcher.Constraint("Vertical", 0),
    Sketcher.Constraint("Horizontal", 1),
    Sketcher.Constraint("Vertical", 2),
    Sketcher.Constraint("Horizontal", 3),
    Sketcher.Constraint("Vertical", 4),
    Sketcher.Constraint("Horizontal", 5),
    Sketcher.Constraint("Vertical", 6),
    Sketcher.Constraint("Horizontal", 7),
    Sketcher.Constraint("PointOnObject", 6, 2, -1),
    Sketcher.Constraint("Vertical", 3, 2, 4, 2),
    Sketcher.Constraint("Vertical", 2, 2, 5, 2),
    Sketcher.Constraint("Equal", 2, 4),
    Sketcher.Constraint("DistanceY", 0, 1, 0, 2, 1.5),
    Sketcher.Constraint("DistanceY", -1, 1, 0, 2, 38.0),
    Sketcher.Constraint("DistanceX", 1, 1, 1, 2, 10.429413),
    Sketcher.Constraint("DistanceX", 0, 2, -1, 1, 5.812747),
])
sketch19.setExpression("Constraints[20]", "Params.sketch19_height")
pocket15 = body.newObject("PartDesign::Pocket", "Pocket014")
pocket15.Profile = sketch19
pocket15.Type = "ThroughAll"
pocket15.Reversed = True

# Sketch on YZ plane
sketch20 = body.newObject("Sketcher::SketchObject", "Sketch019")
sketch20.AttachmentSupport = (doc.getObject("YZ_Plane"), [""])
sketch20.MapMode = "FlatFace"
sketch20.AttachmentOffset = App.Placement(V(0, 0, 2.423661), App.Rotation())
add_polygon(sketch20, [(19.5, 1.5), (4.5, 1.5), (4.5, 3), (19.5, 3)])  # lines 0-3
sketch20.addConstraint([
    Sketcher.Constraint("Horizontal", 0),
    Sketcher.Constraint("Vertical", 1),
    Sketcher.Constraint("Horizontal", 2),
    Sketcher.Constraint("Vertical", 3),
    Sketcher.Constraint("DistanceX", 0, 2, 0, 1, 15.0),
    Sketcher.Constraint("DistanceY", 1, 1, 1, 2, 1.5),
    Sketcher.Constraint("DistanceY", -1, 1, 1, 2, 3.0),
    Sketcher.Constraint("DistanceX", -1, 1, 0, 2, 4.5),
])
sketch20.setExpression("Constraints[8]", "Params.sketch20_width")
sketch20.setExpression("Constraints[9]", "Params.sketch20_height")
pocket16 = body.newObject("PartDesign::Pocket", "Pocket015")
pocket16.Profile = sketch20
pocket16.setExpression("Length", "Params.pocket16_length")
pocket16.Reversed = True

# Sketch on XY plane
sketch21 = body.newObject("Sketcher::SketchObject", "Sketch020")
sketch21.AttachmentSupport = (doc.getObject("XY_Plane"), [""])
sketch21.MapMode = "FlatFace"
sketch21.AttachmentOffset = App.Placement(V(0, 0, 3), App.Rotation())
sketch21.addGeometry(Part.Circle(V(53, 12, 0), V(0, 0, 1), 1.6), False)
sketch21.addConstraint([
    Sketcher.Constraint("Diameter", 0, 3.2),
    Sketcher.Constraint("DistanceX", -1, 1, 0, 3, 53.0),
    Sketcher.Constraint("DistanceY", -1, 1, 0, 3, 12.0),
])
sketch21.setExpression("Constraints[0]", "Params.sketch21_diameter")
pocket17 = body.newObject("PartDesign::Pocket", "Pocket016")
pocket17.Profile = sketch21
pocket17.Type = "UpToFirst"

# Sketch on XY plane
sketch22 = body.newObject("Sketcher::SketchObject", "Sketch021")
sketch22.AttachmentSupport = (doc.getObject("XY_Plane"), [""])
sketch22.MapMode = "FlatFace"
sketch22.AttachmentOffset = App.Placement(V(0, 0, 3), App.Rotation())
sketch22.addGeometry(Part.Circle(V(46, 12, 0), V(0, 0, 1), 2.5), False)
sketch22.addConstraint([
    Sketcher.Constraint("Diameter", 0, 5.0),
    Sketcher.Constraint("DistanceX", -1, 1, 0, 3, 46.0),
    Sketcher.Constraint("DistanceY", -1, 1, 0, 3, 12.0),
])
sketch22.setExpression("Constraints[0]", "Params.sketch22_diameter")
pocket18 = body.newObject("PartDesign::Pocket", "Pocket017")
pocket18.Profile = sketch22
pocket18.Type = "UpToFirst"

# Sketch on XY plane
sketch23 = body.newObject("Sketcher::SketchObject", "Sketch022")
sketch23.AttachmentSupport = (doc.getObject("XY_Plane"), [""])
sketch23.MapMode = "FlatFace"
sketch23.AttachmentOffset = App.Placement(V(0, 0, 3), App.Rotation())
sketch23.addGeometry(Part.Circle(V(46, 19, 0), V(0, 0, 1), 1.6), False)
sketch23.addConstraint([
    Sketcher.Constraint("Diameter", 0, 3.2),
    Sketcher.Constraint("DistanceX", -1, 1, 0, 3, 46.0),
    Sketcher.Constraint("DistanceY", -1, 1, 0, 3, 19.0),
])
sketch23.setExpression("Constraints[0]", "Params.sketch23_diameter")
pocket19 = body.newObject("PartDesign::Pocket", "Pocket018")
pocket19.Profile = sketch23
pocket19.Type = "UpToFirst"

# Sketch on XY plane
sketch24 = body.newObject("Sketcher::SketchObject", "Sketch023")
sketch24.AttachmentSupport = (doc.getObject("XY_Plane"), [""])
sketch24.MapMode = "FlatFace"
sketch24.AttachmentOffset = App.Placement(V(0, 0, 3), App.Rotation())
sketch24.addGeometry(Part.Circle(V(46, 5, 0), V(0, 0, 1), 1.6), False)
sketch24.addConstraint([
    Sketcher.Constraint("Diameter", 0, 3.2),
    Sketcher.Constraint("DistanceX", -1, 1, 0, 3, 46.0),
    Sketcher.Constraint("DistanceY", -1, 1, 0, 3, 5.0),
])
sketch24.setExpression("Constraints[0]", "Params.sketch24_diameter")
pocket20 = body.newObject("PartDesign::Pocket", "Pocket019")
pocket20.Profile = sketch24
pocket20.Type = "UpToFirst"

# Sketch on XY plane
sketch25 = body.newObject("Sketcher::SketchObject", "Sketch024")
sketch25.AttachmentSupport = (doc.getObject("XY_Plane"), [""])
sketch25.MapMode = "FlatFace"
sketch25.AttachmentOffset = App.Placement(V(0, 0, 3), App.Rotation())
sketch25.addGeometry(Part.Circle(V(39, 12, 0), V(0, 0, 1), 1.6), False)
sketch25.addConstraint([
    Sketcher.Constraint("Diameter", 0, 3.2),
    Sketcher.Constraint("DistanceX", -1, 1, 0, 3, 39.0),
    Sketcher.Constraint("DistanceY", -1, 1, 0, 3, 12.0),
])
sketch25.setExpression("Constraints[0]", "Params.sketch25_diameter")
pocket21 = body.newObject("PartDesign::Pocket", "Pocket020")
pocket21.Profile = sketch25
pocket21.Type = "UpToFirst"

# Sketch on XY plane
sketch26 = body.newObject("Sketcher::SketchObject", "Sketch025")
sketch26.AttachmentSupport = (doc.getObject("XY_Plane"), [""])
sketch26.MapMode = "FlatFace"
sketch26.addGeometry([
    Part.LineSegment(V(32, 2, 0), V(46, 2, 0)),  # 0
    Part.ArcOfCircle(Part.Circle(V(46, 12, 0), V(0, 0, 1), 10), math.radians(-90), math.radians(0)),  # 1
    Part.LineSegment(V(56, 12, 0), V(58, 12, 0)),  # 2
    Part.LineSegment(V(58, 12, 0), V(58, 0, 0)),  # 3
    Part.LineSegment(V(58, 0, 0), V(32, 0, 0)),  # 4
    Part.LineSegment(V(32, 0, 0), V(32, 2, 0)),  # 5
], False)
sketch26.addConstraint([
    Sketcher.Constraint("Tangent", 0, 2, 1, 1),
    Sketcher.Constraint("Coincident", 1, 2, 2, 1),
    Sketcher.Constraint("Coincident", 2, 2, 3, 1),
    Sketcher.Constraint("Coincident", 3, 2, 4, 1),
    Sketcher.Constraint("Coincident", 4, 2, 5, 1),
    Sketcher.Constraint("Coincident", 5, 2, 0, 1),
    Sketcher.Constraint("Horizontal", 0),
    Sketcher.Constraint("Horizontal", 2),
    Sketcher.Constraint("Vertical", 3),
    Sketcher.Constraint("Horizontal", 4),
    Sketcher.Constraint("Vertical", 5),
    Sketcher.Constraint("PointOnObject", 3, 2, -1),
    Sketcher.Constraint("Equal", 2, 5),
    Sketcher.Constraint("Radius", 1, 10.0),
    Sketcher.Constraint("DistanceX", 0, 1, 0, 2, 14.0),
    Sketcher.Constraint("DistanceX", 2, 1, 2, 2, 2.0),
    Sketcher.Constraint("DistanceY", 3, 2, 3, 1, 12.0),
    Sketcher.Constraint("DistanceX", -1, 1, 1, 3, 46.0),
])
sketch26.setExpression("Constraints[13]", "Params.sketch26_radius")
sketch26.setExpression("Constraints[14]", "Params.sketch26_width")
sketch26.setExpression("Constraints[15]", "Params.sketch26_width2")
sketch26.setExpression("Constraints[16]", "Params.sketch26_height")
pocket22 = body.newObject("PartDesign::Pocket", "Pocket021")
pocket22.Profile = sketch26
pocket22.Type = "UpToFirst"
pocket22.Reversed = True

# Sketch on XY plane
sketch27 = body.newObject("Sketcher::SketchObject", "Sketch026")
sketch27.AttachmentSupport = (doc.getObject("XY_Plane"), [""])
sketch27.MapMode = "FlatFace"
sketch27.addGeometry([
    Part.LineSegment(V(58, 12, 0), V(56, 12, 0)),  # 0
    Part.ArcOfCircle(Part.Circle(V(46, 12, 0), V(0, 0, 1), 10), math.radians(0), math.radians(90)),  # 1
    Part.LineSegment(V(46, 22, 0), V(32, 22, 0)),  # 2
    Part.LineSegment(V(32, 22, 0), V(32, 24, 0)),  # 3
    Part.LineSegment(V(32, 24, 0), V(58, 24, 0)),  # 4
    Part.LineSegment(V(58, 24, 0), V(58, 12, 0)),  # 5
], False)
sketch27.addConstraint([
    Sketcher.Constraint("Coincident", 0, 2, 1, 1),
    Sketcher.Constraint("Tangent", 1, 2, 2, 1),
    Sketcher.Constraint("Coincident", 2, 2, 3, 1),
    Sketcher.Constraint("Coincident", 3, 2, 4, 1),
    Sketcher.Constraint("Coincident", 4, 2, 5, 1),
    Sketcher.Constraint("Coincident", 5, 2, 0, 1),
    Sketcher.Constraint("Horizontal", 0),
    Sketcher.Constraint("Horizontal", 2),
    Sketcher.Constraint("Vertical", 3),
    Sketcher.Constraint("Horizontal", 4),
    Sketcher.Constraint("Vertical", 5),
    Sketcher.Constraint("Horizontal", 1, 3, 0, 2),
    Sketcher.Constraint("Equal", 0, 3),
    Sketcher.Constraint("Radius", 1, 10.0),
    Sketcher.Constraint("DistanceX", 0, 2, 0, 1, 2.0),
    Sketcher.Constraint("DistanceX", 2, 2, 2, 1, 14.0),
    Sketcher.Constraint("DistanceX", -1, 1, 1, 3, 46.0),
    Sketcher.Constraint("DistanceY", -1, 1, 1, 3, 12.0),
])
sketch27.setExpression("Constraints[13]", "Params.sketch27_radius")
sketch27.setExpression("Constraints[14]", "Params.sketch27_width")
sketch27.setExpression("Constraints[15]", "Params.sketch27_width2")
pocket23 = body.newObject("PartDesign::Pocket", "Pocket022")
pocket23.Profile = sketch27
pocket23.Type = "UpToFirst"
pocket23.Reversed = True

doc.recompute()
